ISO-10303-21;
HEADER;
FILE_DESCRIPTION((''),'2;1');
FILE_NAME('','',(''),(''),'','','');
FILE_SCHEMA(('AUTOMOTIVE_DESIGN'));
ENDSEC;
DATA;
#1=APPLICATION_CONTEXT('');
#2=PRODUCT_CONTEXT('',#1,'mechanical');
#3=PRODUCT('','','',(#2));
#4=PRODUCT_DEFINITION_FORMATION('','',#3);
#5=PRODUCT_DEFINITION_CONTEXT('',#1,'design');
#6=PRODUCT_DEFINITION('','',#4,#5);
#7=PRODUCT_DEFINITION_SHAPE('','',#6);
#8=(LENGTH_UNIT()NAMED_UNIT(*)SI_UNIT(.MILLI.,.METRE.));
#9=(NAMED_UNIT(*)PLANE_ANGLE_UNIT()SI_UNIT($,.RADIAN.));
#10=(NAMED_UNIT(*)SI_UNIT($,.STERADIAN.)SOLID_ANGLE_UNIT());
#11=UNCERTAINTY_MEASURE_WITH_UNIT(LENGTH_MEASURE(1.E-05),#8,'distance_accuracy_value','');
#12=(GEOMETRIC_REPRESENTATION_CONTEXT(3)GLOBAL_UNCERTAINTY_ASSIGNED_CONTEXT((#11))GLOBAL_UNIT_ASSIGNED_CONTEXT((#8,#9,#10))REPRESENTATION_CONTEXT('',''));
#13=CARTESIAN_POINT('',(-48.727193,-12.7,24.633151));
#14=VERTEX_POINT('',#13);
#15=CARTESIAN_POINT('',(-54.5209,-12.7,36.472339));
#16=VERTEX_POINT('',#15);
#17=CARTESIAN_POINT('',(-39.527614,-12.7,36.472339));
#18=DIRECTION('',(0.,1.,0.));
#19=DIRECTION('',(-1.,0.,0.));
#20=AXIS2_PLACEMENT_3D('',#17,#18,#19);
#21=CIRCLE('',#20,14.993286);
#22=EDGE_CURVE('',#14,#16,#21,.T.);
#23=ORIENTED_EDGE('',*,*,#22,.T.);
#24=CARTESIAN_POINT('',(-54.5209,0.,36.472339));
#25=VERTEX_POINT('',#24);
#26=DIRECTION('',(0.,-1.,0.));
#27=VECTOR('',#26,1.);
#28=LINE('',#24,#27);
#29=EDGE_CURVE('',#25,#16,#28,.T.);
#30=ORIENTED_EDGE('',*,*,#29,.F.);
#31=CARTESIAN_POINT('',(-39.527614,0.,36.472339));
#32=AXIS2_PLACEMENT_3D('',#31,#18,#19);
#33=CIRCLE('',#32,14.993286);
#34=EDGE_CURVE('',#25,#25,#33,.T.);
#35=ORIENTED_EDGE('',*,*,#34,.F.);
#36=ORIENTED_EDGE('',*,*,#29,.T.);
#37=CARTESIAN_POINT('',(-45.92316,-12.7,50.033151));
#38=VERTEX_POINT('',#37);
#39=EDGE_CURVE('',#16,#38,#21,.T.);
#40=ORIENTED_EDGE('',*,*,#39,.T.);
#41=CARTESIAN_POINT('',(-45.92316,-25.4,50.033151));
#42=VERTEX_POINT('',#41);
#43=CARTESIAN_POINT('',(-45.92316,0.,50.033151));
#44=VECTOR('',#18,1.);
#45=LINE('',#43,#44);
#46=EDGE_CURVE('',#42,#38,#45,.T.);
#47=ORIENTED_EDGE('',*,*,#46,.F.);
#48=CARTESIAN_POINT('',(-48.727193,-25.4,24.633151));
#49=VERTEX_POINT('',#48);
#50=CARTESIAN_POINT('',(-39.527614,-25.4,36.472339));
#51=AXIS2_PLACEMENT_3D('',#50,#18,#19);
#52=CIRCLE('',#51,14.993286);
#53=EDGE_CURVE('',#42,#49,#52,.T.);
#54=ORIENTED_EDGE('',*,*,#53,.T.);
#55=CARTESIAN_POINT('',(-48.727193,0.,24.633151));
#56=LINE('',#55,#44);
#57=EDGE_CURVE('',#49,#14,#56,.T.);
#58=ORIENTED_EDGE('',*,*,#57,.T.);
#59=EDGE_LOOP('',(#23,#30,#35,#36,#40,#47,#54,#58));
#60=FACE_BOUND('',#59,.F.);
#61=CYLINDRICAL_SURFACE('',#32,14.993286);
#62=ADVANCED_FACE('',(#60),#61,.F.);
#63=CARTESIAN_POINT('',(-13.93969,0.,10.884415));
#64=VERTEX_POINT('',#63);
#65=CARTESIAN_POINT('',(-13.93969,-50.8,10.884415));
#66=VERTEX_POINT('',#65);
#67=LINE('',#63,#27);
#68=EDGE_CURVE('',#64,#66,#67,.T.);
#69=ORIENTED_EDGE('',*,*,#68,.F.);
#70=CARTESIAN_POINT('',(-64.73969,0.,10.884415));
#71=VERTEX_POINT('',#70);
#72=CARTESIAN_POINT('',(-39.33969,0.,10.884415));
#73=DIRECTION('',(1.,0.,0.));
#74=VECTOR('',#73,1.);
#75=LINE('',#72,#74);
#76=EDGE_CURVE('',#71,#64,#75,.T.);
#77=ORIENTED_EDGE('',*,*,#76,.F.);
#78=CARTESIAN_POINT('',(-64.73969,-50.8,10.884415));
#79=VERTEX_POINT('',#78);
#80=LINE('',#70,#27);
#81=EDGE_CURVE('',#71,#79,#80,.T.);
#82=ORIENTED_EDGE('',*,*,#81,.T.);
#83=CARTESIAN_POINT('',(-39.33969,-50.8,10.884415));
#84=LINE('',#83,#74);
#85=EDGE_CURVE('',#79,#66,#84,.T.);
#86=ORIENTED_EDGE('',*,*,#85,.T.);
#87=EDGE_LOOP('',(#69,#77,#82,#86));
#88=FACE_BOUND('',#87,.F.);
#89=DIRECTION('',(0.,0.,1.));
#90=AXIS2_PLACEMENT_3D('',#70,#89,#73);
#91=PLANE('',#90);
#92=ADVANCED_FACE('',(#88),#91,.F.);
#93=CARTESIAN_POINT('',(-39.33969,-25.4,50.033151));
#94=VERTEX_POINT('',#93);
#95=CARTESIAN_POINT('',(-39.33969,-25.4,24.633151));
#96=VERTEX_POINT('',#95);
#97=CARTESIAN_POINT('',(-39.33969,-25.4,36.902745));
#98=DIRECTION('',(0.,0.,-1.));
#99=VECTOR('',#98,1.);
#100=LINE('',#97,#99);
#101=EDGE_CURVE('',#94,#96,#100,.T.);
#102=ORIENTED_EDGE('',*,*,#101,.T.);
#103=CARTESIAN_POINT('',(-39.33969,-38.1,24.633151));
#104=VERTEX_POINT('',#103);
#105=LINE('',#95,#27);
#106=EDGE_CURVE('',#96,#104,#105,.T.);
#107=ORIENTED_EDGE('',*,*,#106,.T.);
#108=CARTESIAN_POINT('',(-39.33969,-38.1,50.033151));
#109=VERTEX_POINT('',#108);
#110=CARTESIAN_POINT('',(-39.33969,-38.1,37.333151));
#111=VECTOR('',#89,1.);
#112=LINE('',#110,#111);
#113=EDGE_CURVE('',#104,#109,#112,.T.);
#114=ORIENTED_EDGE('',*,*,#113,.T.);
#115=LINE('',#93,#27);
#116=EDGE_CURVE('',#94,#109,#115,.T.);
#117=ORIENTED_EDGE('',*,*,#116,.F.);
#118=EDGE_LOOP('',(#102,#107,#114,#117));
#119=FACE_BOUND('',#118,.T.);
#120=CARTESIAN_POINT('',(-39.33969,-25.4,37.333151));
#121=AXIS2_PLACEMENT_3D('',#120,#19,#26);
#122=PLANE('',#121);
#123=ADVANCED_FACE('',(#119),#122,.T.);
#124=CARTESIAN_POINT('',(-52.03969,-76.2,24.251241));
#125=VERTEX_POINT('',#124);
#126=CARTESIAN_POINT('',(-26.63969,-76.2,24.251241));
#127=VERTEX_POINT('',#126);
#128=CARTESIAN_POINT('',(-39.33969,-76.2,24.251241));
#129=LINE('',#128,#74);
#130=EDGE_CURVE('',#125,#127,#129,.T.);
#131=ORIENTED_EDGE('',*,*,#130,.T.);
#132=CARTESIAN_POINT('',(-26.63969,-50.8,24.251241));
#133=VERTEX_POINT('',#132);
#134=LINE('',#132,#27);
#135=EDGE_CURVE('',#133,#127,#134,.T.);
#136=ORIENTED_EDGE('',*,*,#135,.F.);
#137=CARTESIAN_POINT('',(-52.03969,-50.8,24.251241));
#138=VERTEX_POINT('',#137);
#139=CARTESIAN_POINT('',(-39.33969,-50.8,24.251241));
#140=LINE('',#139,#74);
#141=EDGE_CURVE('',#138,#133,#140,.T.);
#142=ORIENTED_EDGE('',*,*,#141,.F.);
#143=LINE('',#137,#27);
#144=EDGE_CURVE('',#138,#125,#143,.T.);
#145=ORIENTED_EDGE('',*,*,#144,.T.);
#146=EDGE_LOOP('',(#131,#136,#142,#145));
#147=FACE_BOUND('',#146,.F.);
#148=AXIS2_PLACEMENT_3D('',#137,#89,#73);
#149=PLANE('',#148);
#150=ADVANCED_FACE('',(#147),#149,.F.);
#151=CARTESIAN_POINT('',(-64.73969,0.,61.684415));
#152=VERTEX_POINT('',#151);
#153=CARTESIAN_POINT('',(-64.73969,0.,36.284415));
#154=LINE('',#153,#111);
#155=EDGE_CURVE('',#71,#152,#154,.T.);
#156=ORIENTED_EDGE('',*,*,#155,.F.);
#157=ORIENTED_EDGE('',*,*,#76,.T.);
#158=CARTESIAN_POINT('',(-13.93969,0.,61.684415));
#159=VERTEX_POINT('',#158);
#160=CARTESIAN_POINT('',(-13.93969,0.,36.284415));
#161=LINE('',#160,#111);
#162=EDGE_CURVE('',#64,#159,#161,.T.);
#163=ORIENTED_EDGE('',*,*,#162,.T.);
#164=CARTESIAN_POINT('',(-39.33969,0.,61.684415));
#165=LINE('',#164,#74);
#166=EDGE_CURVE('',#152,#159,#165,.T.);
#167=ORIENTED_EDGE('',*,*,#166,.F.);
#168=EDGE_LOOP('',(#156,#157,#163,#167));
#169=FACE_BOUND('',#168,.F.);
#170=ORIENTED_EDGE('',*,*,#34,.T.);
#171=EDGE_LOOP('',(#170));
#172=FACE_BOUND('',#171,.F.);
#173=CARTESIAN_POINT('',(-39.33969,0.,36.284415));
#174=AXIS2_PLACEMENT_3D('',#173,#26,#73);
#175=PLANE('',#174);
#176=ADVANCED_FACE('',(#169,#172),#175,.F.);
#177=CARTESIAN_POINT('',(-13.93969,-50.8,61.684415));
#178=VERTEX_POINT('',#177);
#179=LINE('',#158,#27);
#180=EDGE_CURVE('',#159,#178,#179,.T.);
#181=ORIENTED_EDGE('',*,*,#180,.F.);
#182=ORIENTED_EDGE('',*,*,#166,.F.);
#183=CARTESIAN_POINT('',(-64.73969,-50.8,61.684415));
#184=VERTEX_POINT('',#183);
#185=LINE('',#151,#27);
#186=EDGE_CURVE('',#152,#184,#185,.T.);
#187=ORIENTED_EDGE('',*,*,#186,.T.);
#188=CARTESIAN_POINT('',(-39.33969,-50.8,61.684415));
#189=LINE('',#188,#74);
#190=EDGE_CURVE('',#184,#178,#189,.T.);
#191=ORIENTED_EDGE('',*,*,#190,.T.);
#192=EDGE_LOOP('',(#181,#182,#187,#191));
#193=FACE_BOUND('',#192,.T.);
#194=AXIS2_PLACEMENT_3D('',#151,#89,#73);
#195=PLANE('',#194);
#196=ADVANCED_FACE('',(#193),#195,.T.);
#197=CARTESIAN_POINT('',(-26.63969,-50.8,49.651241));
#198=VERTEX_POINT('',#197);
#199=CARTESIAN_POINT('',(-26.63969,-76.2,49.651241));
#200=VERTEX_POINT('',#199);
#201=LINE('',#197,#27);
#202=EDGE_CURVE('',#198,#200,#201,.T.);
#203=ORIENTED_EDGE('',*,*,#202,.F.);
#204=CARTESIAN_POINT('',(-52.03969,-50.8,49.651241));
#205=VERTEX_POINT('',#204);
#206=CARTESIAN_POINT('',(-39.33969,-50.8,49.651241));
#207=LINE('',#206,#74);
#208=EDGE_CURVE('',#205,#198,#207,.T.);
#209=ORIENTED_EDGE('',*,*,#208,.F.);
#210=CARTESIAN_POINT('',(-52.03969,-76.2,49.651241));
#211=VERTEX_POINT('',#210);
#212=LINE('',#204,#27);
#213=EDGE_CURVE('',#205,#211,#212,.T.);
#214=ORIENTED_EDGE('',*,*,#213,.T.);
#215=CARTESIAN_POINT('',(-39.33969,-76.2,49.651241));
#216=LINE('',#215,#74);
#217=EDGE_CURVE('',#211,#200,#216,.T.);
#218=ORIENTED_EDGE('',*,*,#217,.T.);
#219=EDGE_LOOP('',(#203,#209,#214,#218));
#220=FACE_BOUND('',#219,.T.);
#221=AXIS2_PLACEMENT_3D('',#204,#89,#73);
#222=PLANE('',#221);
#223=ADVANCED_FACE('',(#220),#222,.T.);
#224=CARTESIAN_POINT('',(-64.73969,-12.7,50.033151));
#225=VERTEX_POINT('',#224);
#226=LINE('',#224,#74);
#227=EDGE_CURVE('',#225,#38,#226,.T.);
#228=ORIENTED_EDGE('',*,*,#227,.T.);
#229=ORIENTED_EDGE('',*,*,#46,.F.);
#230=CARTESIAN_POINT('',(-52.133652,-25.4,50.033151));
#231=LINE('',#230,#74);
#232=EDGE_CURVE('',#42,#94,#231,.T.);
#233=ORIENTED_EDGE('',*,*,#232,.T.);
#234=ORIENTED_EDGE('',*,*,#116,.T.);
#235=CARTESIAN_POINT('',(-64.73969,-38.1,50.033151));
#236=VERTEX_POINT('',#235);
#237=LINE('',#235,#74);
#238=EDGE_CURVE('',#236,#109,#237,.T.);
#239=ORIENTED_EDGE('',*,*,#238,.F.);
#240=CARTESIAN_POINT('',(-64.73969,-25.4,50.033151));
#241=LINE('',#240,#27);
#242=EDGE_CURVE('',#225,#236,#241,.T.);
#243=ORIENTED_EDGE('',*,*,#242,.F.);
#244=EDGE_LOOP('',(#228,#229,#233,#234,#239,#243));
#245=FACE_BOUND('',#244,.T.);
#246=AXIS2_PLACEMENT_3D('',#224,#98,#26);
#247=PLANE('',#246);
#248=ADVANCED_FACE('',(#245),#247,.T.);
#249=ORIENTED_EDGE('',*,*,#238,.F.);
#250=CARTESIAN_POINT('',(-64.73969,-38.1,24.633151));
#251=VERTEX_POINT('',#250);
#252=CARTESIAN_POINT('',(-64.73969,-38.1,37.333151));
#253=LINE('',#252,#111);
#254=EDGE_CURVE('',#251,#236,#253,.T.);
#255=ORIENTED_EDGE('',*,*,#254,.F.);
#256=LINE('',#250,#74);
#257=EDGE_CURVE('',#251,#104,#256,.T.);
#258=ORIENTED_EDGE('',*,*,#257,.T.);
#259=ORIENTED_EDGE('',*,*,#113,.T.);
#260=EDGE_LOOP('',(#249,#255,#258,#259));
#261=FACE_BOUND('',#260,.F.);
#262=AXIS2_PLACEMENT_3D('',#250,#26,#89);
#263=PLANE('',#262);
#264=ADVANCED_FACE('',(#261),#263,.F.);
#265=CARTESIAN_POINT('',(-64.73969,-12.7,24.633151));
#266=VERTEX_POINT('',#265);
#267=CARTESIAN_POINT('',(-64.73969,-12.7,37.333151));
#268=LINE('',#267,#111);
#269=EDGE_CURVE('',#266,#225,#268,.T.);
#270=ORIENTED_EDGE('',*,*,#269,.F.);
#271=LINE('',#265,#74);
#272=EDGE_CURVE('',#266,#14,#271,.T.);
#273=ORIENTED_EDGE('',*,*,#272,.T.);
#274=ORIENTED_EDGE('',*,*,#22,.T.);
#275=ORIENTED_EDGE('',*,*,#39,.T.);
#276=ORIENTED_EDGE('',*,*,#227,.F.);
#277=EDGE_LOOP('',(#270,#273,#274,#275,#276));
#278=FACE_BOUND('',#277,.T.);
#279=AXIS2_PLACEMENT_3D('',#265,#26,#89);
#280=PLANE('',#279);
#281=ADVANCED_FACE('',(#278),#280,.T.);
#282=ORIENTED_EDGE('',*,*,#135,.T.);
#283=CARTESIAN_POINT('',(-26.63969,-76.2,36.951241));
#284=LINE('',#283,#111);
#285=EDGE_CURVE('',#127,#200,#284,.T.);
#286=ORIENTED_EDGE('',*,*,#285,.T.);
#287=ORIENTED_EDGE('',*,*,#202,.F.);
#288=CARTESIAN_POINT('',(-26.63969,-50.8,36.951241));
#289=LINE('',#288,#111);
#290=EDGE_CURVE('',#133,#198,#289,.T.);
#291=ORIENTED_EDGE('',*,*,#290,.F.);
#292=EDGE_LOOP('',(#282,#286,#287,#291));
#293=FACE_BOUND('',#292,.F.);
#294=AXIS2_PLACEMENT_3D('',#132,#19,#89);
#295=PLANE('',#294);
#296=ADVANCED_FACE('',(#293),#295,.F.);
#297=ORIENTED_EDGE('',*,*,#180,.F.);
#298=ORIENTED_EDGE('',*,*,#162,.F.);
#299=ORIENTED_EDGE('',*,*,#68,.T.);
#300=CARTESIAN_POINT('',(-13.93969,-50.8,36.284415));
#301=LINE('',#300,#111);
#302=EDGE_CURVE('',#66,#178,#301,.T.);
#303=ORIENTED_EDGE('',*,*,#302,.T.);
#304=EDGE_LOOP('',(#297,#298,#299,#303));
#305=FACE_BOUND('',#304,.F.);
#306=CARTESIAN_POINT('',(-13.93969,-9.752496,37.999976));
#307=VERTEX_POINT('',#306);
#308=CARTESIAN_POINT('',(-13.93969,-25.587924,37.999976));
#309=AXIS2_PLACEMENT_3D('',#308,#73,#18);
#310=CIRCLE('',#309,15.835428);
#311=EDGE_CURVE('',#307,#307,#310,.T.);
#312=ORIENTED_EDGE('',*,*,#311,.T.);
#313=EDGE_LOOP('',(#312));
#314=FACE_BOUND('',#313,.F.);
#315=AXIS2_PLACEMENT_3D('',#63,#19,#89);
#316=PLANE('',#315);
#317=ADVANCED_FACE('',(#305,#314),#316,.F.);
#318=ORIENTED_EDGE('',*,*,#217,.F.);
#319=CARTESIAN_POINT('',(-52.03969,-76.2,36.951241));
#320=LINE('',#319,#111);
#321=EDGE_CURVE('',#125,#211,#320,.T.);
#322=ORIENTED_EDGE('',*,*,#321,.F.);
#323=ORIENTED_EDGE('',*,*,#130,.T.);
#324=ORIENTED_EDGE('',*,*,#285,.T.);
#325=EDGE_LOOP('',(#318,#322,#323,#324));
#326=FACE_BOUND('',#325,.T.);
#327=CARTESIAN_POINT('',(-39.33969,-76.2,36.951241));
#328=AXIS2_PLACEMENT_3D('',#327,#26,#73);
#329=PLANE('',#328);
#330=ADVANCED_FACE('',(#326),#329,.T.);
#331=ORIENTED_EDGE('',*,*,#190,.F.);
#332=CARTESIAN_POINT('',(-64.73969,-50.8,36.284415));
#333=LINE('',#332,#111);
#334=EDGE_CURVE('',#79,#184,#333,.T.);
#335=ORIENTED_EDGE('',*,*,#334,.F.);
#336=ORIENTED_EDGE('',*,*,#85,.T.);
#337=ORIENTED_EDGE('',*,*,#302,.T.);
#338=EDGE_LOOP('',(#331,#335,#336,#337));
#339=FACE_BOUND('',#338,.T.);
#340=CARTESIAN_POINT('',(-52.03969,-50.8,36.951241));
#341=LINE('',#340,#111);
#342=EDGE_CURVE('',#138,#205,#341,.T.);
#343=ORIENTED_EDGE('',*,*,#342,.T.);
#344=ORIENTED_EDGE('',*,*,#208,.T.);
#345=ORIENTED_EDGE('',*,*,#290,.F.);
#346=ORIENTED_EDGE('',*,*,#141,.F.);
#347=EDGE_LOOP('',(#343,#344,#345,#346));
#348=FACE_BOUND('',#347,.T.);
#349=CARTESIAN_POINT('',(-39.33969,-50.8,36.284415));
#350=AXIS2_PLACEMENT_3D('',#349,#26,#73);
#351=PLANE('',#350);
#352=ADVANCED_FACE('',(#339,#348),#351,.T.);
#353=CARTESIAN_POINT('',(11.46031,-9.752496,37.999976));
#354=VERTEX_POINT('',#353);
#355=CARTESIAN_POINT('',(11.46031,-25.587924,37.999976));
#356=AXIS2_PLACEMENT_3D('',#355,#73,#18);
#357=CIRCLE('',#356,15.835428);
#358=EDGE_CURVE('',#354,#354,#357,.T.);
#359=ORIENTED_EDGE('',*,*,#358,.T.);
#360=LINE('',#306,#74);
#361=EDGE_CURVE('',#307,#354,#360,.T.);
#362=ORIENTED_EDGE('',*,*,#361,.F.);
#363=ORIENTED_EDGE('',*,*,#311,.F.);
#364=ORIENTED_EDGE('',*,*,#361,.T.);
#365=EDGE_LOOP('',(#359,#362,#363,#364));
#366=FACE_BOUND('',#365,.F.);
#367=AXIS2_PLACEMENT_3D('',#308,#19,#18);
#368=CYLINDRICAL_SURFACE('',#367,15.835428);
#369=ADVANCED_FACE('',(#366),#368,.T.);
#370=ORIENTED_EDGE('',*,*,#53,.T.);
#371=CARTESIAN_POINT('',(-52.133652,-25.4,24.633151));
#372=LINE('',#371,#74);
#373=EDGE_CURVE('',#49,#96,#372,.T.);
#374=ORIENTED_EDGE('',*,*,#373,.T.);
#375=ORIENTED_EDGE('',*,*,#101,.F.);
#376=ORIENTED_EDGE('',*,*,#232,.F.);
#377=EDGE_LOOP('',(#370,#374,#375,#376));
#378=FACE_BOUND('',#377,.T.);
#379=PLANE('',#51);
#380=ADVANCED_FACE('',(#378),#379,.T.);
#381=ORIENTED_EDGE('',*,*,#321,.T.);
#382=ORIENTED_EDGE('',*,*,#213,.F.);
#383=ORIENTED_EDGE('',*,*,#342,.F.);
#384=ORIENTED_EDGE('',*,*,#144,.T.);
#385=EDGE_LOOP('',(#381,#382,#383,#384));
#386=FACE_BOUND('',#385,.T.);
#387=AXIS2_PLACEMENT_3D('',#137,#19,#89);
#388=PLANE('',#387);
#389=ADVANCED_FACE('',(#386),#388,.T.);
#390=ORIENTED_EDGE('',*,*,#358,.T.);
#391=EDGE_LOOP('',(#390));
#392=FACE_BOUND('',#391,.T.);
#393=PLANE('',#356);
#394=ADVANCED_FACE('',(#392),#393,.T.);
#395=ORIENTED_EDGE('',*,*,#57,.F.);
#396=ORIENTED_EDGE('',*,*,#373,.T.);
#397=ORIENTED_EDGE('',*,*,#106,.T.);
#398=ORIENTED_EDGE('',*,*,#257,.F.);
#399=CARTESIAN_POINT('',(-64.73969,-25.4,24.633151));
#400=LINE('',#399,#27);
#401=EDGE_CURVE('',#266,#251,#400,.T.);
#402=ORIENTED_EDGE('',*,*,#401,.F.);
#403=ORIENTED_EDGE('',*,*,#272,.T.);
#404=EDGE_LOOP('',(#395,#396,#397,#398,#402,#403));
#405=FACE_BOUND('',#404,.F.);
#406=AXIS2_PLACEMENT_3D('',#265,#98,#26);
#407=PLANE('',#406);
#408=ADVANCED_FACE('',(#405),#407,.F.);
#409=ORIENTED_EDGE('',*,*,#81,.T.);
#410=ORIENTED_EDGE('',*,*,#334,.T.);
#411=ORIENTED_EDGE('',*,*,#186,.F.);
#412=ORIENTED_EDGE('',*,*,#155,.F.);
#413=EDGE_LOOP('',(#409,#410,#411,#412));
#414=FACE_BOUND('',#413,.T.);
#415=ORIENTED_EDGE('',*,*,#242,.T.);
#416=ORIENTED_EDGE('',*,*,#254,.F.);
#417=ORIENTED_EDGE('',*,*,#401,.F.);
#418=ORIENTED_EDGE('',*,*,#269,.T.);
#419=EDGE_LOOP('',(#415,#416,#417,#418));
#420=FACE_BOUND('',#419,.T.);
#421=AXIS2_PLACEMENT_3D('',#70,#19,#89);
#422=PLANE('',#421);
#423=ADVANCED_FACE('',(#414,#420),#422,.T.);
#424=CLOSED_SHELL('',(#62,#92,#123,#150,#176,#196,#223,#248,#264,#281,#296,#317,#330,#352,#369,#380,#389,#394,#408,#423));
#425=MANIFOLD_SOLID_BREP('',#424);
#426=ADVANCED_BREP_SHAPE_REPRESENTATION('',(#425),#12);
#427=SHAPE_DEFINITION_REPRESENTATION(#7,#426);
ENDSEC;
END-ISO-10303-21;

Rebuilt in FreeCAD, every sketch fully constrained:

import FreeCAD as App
import Part
import Sketcher
from FreeCAD import Vector
Q = App.Units.Quantity


def add_polygon(sketch, points):
    """Adds a closed chain of lines whose ends are joined by coincident constraints."""
    first, n = sketch.GeometryCount, len(points)
    for a, b in zip(points, points[1:] + points[:1]):
        sketch.addGeometry(Part.LineSegment(App.Vector(*a, 0), App.Vector(*b, 0)), False)
    for i in range(n):
        sketch.addConstraint(Sketcher.Constraint("Coincident", first + i, 2, first + (i + 1) % n, 1))

doc = App.newDocument("Part")
body = doc.addObject("PartDesign::Body", "Body")

sketch1 = body.newObject("Sketcher::SketchObject", "Sketch")
sketch1.AttachmentSupport = (doc.getObject("XZ_Plane"), [""])
sketch1.MapMode = "FlatFace"
add_polygon(sketch1, [(-65, 62), (-65, 11), (-14, 11), (-14, 62)])
sketch1.addConstraint(Sketcher.Constraint("Vertical", 0))
sketch1.addConstraint(Sketcher.Constraint("Horizontal", 1))
sketch1.addConstraint(Sketcher.Constraint("Vertical", 2))
sketch1.addConstraint(Sketcher.Constraint("Horizontal", 3))
sketch1.addConstraint(Sketcher.Constraint("Equal", 3, 0))
sketch1.addConstraint(Sketcher.Constraint("DistanceX", 1, 1, 1, 2, Q("2 in")))
sketch1.addConstraint(Sketcher.Constraint("DistanceX", 0, 2, -1, 1, Q("64.73969 mm")))
sketch1.addConstraint(Sketcher.Constraint("DistanceY", -1, 1, 0, 2, Q("10.884415 mm")))
pad1 = body.newObject("PartDesign::Pad", "Pad")
pad1.Profile = sketch1
pad1.Length = Q("2 in")

sketch2 = body.newObject("Sketcher::SketchObject", "Sketch001")
sketch2.AttachmentSupport = (doc.getObject("XZ_Plane"), [""])
sketch2.MapMode = "FlatFace"
sketch2.AttachmentOffset = App.Placement(Vector(0, 0, 2 * 25.4), App.Rotation())
add_polygon(sketch2, [(-52, 50), (-52, 24), (-27, 24), (-27, 50)])
sketch2.addConstraint(Sketcher.Constraint("Vertical", 0))
sketch2.addConstraint(Sketcher.Constraint("Horizontal", 1))
sketch2.addConstraint(Sketcher.Constraint("Vertical", 2))
sketch2.addConstraint(Sketcher.Constraint("Horizontal", 3))
sketch2.addConstraint(Sketcher.Constraint("Equal", 3, 0))
sketch2.addConstraint(Sketcher.Constraint("DistanceX", 1, 1, 1, 2, Q("1 in")))
sketch2.addConstraint(Sketcher.Constraint("DistanceX", 0, 2, -1, 1, Q("52.03969 mm")))
sketch2.addConstraint(Sketcher.Constraint("DistanceY", -1, 1, 0, 2, Q("24.251241 mm")))
pad2 = body.newObject("PartDesign::Pad", "Pad001")
pad2.Profile = sketch2
pad2.Length = Q("1 in")

sketch3 = body.newObject("Sketcher::SketchObject", "Sketch002")
sketch3.AttachmentSupport = (doc.getObject("YZ_Plane"), [""])
sketch3.MapMode = "FlatFace"
sketch3.AttachmentOffset = App.Placement(Vector(0, 0, -64.73969), App.Rotation())
add_polygon(sketch3, [(-13, 50), (-13, 25), (-38, 25), (-38, 50)])
sketch3.addConstraint(Sketcher.Constraint("Vertical", 0))
sketch3.addConstraint(Sketcher.Constraint("Horizontal", 1))
sketch3.addConstraint(Sketcher.Constraint("Vertical", 2))
sketch3.addConstraint(Sketcher.Constraint("Horizontal", 3))
sketch3.addConstraint(Sketcher.Constraint("Equal", 3, 0))
sketch3.addConstraint(Sketcher.Constraint("DistanceX", 1, 2, 1, 1, Q("1 in")))
sketch3.addConstraint(Sketcher.Constraint("DistanceX", 0, 2, -1, 1, Q("0.5 in")))
sketch3.addConstraint(Sketcher.Constraint("DistanceY", -1, 1, 0, 2, Q("24.633151 mm")))
pocket1 = body.newObject("PartDesign::Pocket", "Pocket")
pocket1.Profile = sketch3
pocket1.Length = Q("1 in")
pocket1.Reversed = True

sketch4 = body.newObject("Sketcher::SketchObject", "Sketch003")
sketch4.AttachmentSupport = (doc.getObject("YZ_Plane"), [""])
sketch4.MapMode = "FlatFace"
sketch4.AttachmentOffset = App.Placement(Vector(0, 0, -13.93969), App.Rotation())
sketch4.addGeometry(Part.Circle(Vector(-25.587924, 37.999976, 0), Vector(0, 0, 1), 15.835428), False)
sketch4.addConstraint(Sketcher.Constraint("Diameter", 0, Q("31.670856 mm")))
sketch4.addConstraint(Sketcher.Constraint("DistanceX", 0, 3, -1, 1, Q("25.587924 mm")))
sketch4.addConstraint(Sketcher.Constraint("DistanceY", -1, 1, 0, 3, Q("37.999976 mm")))
pad3 = body.newObject("PartDesign::Pad", "Pad002")
pad3.Profile = sketch4
pad3.Length = Q("1 in")

sketch5 = body.newObject("Sketcher::SketchObject", "Sketch004")
sketch5.AttachmentSupport = (doc.getObject("XZ_Plane"), [""])
sketch5.MapMode = "FlatFace"
sketch5.addGeometry(Part.Circle(Vector(-40, 36, 0), Vector(0, 0, 1), 15), False)
sketch5.addConstraint(Sketcher.Constraint("Diameter", 0, Q("29.986572 mm")))
sketch5.addConstraint(Sketcher.Constraint("DistanceY", -1, 1, 0, 3, Q("36.472339 mm")))
sketch5.addConstraint(Sketcher.Constraint("DistanceX", 0, 3, -1, 1, Q("39.527614 mm")))
pocket2 = body.newObject("PartDesign::Pocket", "Pocket001")
pocket2.Profile = sketch5
pocket2.Length = Q("1 in")
pocket2.Reversed = True

doc.recompute()
